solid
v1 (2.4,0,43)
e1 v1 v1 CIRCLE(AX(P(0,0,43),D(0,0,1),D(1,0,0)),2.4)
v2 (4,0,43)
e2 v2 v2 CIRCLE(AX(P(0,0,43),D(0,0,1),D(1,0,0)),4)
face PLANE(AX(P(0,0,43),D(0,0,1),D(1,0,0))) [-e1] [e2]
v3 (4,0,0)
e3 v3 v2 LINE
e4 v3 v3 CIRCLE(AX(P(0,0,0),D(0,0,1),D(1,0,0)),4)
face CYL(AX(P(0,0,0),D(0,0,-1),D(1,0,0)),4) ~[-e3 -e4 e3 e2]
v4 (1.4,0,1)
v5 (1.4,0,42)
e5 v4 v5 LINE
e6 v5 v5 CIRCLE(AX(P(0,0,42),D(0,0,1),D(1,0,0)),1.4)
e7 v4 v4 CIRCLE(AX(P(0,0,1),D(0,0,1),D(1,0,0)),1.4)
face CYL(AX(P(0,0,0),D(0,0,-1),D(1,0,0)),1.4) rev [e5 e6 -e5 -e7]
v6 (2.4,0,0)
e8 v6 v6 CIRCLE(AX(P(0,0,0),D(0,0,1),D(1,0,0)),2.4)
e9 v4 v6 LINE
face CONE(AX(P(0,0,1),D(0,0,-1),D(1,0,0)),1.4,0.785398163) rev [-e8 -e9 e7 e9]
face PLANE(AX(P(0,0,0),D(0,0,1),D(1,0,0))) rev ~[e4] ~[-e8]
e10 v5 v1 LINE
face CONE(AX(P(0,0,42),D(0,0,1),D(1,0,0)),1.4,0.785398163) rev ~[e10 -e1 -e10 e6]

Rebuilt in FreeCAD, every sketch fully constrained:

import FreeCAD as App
import Part
import Sketcher

V = App.Vector


def edges_at(feature, points):
    """Names of the edges that pass closest to the given points."""
    edges = feature.Shape.Edges
    near = lambda p: min(range(len(edges)), key=lambda i: edges[i].distToShape(Part.Vertex(*p))[0])
    return sorted({f"Edge{near(p) + 1}" for p in points})

doc = App.newDocument("Part")
body = doc.addObject("PartDesign::Body", "Body")

sketch1 = body.newObject("Sketcher::SketchObject", "Sketch")
sketch1.AttachmentSupport = (doc.getObject("XY_Plane"), [""])
sketch1.MapMode = "FlatFace"
sketch1.addGeometry([
    Part.Circle(V(0, 0, 0), V(0, 0, 1), 4),
    Part.Circle(V(0, 0, 0), V(0, 0, 1), 1.4),
], False)
sketch1.addConstraint([
    Sketcher.Constraint("Coincident", 0, 3, -1, 1),
    Sketcher.Constraint("Coincident", 1, 3, -1, 1),
    Sketcher.Constraint("Diameter", 0, 8.0),
    Sketcher.Constraint("Diameter", 1, 2.8),
])
pad1 = body.newObject("PartDesign::Pad", "Pad")
pad1.Profile = sketch1
pad1.Length = 43
doc.recompute()

chamfer = body.newObject("PartDesign::Chamfer", "Chamfer")
chamfer.Base = (pad1, edges_at(pad1, [(-1.4, 0, 43), (-1.4, 0, 0)]))
chamfer.Size = 1

doc.recompute()
